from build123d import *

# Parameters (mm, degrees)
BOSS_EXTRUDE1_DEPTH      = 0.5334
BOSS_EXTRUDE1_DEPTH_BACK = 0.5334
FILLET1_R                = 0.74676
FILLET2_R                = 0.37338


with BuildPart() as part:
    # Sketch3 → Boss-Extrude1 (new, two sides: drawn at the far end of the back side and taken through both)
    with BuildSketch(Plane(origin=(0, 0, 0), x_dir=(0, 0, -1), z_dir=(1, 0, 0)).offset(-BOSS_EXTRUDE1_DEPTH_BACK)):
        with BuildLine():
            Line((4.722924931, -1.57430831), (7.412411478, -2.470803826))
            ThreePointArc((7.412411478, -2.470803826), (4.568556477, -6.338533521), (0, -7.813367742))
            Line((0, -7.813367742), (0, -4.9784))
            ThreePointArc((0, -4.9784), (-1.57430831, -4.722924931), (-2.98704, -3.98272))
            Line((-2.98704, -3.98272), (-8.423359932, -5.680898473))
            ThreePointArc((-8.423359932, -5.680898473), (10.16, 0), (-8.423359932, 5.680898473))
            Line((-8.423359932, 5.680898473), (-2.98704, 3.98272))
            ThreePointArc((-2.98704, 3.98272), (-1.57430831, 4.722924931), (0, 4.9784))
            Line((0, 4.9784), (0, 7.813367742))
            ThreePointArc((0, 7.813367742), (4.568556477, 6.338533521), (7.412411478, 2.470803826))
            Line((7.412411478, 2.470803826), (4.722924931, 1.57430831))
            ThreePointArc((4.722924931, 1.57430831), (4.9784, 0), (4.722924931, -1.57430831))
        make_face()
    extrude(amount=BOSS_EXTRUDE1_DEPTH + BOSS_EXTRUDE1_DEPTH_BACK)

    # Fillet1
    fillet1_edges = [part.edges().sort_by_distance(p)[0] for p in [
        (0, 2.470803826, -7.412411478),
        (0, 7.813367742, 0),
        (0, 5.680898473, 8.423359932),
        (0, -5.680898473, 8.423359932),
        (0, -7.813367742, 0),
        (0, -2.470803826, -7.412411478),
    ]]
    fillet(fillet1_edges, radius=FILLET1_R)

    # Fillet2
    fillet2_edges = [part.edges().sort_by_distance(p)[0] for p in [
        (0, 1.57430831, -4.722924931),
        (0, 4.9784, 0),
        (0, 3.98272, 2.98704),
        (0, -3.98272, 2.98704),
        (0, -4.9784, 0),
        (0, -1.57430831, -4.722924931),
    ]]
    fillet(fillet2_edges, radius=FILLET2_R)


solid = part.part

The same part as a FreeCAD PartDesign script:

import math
import FreeCAD as App
import Part
import Sketcher

V = App.Vector
Q = App.Units.Quantity


def edges_at(feature, points):
    """Names of the edges that pass closest to the given points."""
    edges = feature.Shape.Edges
    near = lambda p: min(range(len(edges)), key=lambda i: edges[i].distToShape(Part.Vertex(*p))[0])
    return sorted({f"Edge{near(p) + 1}" for p in points})

doc = App.newDocument("Part")
body = doc.addObject("PartDesign::Body", "Body")

sketch1 = body.newObject("Sketcher::SketchObject", "Sketch")
sketch1.AttachmentSupport = (doc.getObject("YZ_Plane"), [""])
sketch1.MapMode = "FlatFace"
sketch1.addGeometry(Part.LineSegment(V(-1.6, -4.7, 0), V(-2.5, -7.4, 0)), False)
sketch1.addGeometry(Part.ArcOfCircle(Part.Circle(V(0, 0, 0), V(0, 0, 1), 7.8), math.radians(180), math.radians(252)), False)
sketch1.addGeometry(Part.LineSegment(V(-7.8, 0, 0), V(-5, 0, 0)), False)
sketch1.addGeometry(Part.ArcOfCircle(Part.Circle(V(0, 0, 0), V(0, 0, 1), 5), math.radians(143), math.radians(180)), False)
sketch1.addGeometry(Part.LineSegment(V(-4, 3, 0), V(-5.7, 8.4, 0)), False)
sketch1.addGeometry(Part.ArcOfCircle(Part.Circle(V(0, 0, 0), V(0, 0, 1), 10.2), math.radians(124), math.radians(416)), False)
sketch1.addGeometry(Part.LineSegment(V(5.7, 8.4, 0), V(4, 3, 0)), False)
sketch1.addGeometry(Part.ArcOfCircle(Part.Circle(V(0, 0, 0), V(0, 0, 1), 5), math.radians(0), math.radians(37)), False)
sketch1.addGeometry(Part.LineSegment(V(5, 0, 0), V(7.8, 0, 0)), False)
sketch1.addGeometry(Part.ArcOfCircle(Part.Circle(V(0, 0, 0), V(0, 0, 1), 7.8), math.radians(-72), math.radians(0)), False)
sketch1.addGeometry(Part.LineSegment(V(2.5, -7.4, 0), V(1.6, -4.7, 0)), False)
sketch1.addGeometry(Part.ArcOfCircle(Part.Circle(V(0, 0, 0), V(0, 0, 1), 5), math.radians(-108), math.radians(-72)), False)
sketch1.addConstraint(Sketcher.Constraint("Coincident", 0, 2, 1, 2))
sketch1.addConstraint(Sketcher.Constraint("Coincident", 1, 1, 2, 1))
sketch1.addConstraint(Sketcher.Constraint("Coincident", 2, 2, 3, 2))
sketch1.addConstraint(Sketcher.Constraint("Coincident", 3, 1, 4, 1))
sketch1.addConstraint(Sketcher.Constraint("Coincident", 4, 2, 5, 1))
sketch1.addConstraint(Sketcher.Constraint("Coincident", 5, 2, 6, 1))
sketch1.addConstraint(Sketcher.Constraint("Coincident", 6, 2, 7, 2))
sketch1.addConstraint(Sketcher.Constraint("Coincident", 7, 1, 8, 1))
sketch1.addConstraint(Sketcher.Constraint("Coincident", 8, 2, 9, 2))
sketch1.addConstraint(Sketcher.Constraint("Coincident", 9, 1, 10, 1))
sketch1.addConstraint(Sketcher.Constraint("Coincident", 10, 2, 11, 2))
sketch1.addConstraint(Sketcher.Constraint("Coincident", 11, 1, 0, 1))
sketch1.addConstraint(Sketcher.Constraint("Horizontal", 2))
sketch1.addConstraint(Sketcher.Constraint("Horizontal", 8))
sketch1.addConstraint(Sketcher.Constraint("Coincident", 1, 3, -1, 1))
sketch1.addConstraint(Sketcher.Constraint("Coincident", 3, 3, -1, 1))
sketch1.addConstraint(Sketcher.Constraint("Coincident", 5, 3, -1, 1))
sketch1.addConstraint(Sketcher.Constraint("Coincident", 7, 3, -1, 1))
sketch1.addConstraint(Sketcher.Constraint("Coincident", 9, 3, -1, 1))
sketch1.addConstraint(Sketcher.Constraint("Coincident", 11, 3, -1, 1))
sketch1.addConstraint(Sketcher.Constraint("Equal", 3, 7))
sketch1.addConstraint(Sketcher.Constraint("Equal", 1, 9))
sketch1.addConstraint(Sketcher.Constraint("Equal", 7, 11))
sketch1.addConstraint(Sketcher.Constraint("PointOnObject", 1, 1, -1))
sketch1.addConstraint(Sketcher.Constraint("PointOnObject", 7, 1, -1))
sketch1.addConstraint(Sketcher.Constraint("Horizontal", 4, 2, 5, 2))
sketch1.addConstraint(Sketcher.Constraint("Horizontal", 3, 1, 6, 2))
sketch1.addConstraint(Sketcher.Constraint("Horizontal", 0, 2, 9, 1))
sketch1.addConstraint(Sketcher.Constraint("Horizontal", 10, 2, 11, 1))
sketch1.addConstraint(Sketcher.Constraint("Radius", 5, Q("0.4 in")))
sketch1.addConstraint(Sketcher.Constraint("Radius", 3, Q("0.196 in")))
sketch1.addConstraint(Sketcher.Constraint("DistanceX", 3, 1, -1, 1, Q("0.1568 in")))
sketch1.addConstraint(Sketcher.Constraint("Radius", 1, Q("7.813368 mm")))
sketch1.addConstraint(Sketcher.Constraint("DistanceX", 4, 2, -1, 1, Q("5.680898 mm")))
sketch1.addConstraint(Sketcher.Constraint("DistanceY", 0, 2, -1, 1, Q("7.412411 mm")))
sketch1.addConstraint(Sketcher.Constraint("DistanceX", -1, 1, 10, 2, Q("1.574308 mm")))
pad1 = body.newObject("PartDesign::Pad", "Pad")
pad1.Profile = sketch1
pad1.Type = "TwoLengths"
pad1.Length = Q("0.021 in")
pad1.Length2 = Q("0.021 in")
doc.recompute()

fillet = body.newObject("PartDesign::Fillet", "Fillet")
fillet.Base = (pad1, edges_at(pad1, [
    (0, 2.471, -7.412),
    (0, 7.813, 0),
    (0, 5.681, 8.423),
    (0, -5.681, 8.423),
    (0, -7.813, 0),
    (0, -2.471, -7.412),
]))
fillet.Radius = Q("0.0294 in")
doc.recompute()

fillet2 = body.newObject("PartDesign::Fillet", "Fillet001")
fillet2.Base = (fillet, edges_at(fillet, [
    (0, 1.574, -4.723),
    (0, 4.978, 0),
    (0, 3.983, 2.987),
    (0, -3.983, 2.987),
    (0, -4.978, 0),
    (0, -1.574, -4.723),
]))
fillet2.Radius = Q("0.0147 in")

doc.recompute()
